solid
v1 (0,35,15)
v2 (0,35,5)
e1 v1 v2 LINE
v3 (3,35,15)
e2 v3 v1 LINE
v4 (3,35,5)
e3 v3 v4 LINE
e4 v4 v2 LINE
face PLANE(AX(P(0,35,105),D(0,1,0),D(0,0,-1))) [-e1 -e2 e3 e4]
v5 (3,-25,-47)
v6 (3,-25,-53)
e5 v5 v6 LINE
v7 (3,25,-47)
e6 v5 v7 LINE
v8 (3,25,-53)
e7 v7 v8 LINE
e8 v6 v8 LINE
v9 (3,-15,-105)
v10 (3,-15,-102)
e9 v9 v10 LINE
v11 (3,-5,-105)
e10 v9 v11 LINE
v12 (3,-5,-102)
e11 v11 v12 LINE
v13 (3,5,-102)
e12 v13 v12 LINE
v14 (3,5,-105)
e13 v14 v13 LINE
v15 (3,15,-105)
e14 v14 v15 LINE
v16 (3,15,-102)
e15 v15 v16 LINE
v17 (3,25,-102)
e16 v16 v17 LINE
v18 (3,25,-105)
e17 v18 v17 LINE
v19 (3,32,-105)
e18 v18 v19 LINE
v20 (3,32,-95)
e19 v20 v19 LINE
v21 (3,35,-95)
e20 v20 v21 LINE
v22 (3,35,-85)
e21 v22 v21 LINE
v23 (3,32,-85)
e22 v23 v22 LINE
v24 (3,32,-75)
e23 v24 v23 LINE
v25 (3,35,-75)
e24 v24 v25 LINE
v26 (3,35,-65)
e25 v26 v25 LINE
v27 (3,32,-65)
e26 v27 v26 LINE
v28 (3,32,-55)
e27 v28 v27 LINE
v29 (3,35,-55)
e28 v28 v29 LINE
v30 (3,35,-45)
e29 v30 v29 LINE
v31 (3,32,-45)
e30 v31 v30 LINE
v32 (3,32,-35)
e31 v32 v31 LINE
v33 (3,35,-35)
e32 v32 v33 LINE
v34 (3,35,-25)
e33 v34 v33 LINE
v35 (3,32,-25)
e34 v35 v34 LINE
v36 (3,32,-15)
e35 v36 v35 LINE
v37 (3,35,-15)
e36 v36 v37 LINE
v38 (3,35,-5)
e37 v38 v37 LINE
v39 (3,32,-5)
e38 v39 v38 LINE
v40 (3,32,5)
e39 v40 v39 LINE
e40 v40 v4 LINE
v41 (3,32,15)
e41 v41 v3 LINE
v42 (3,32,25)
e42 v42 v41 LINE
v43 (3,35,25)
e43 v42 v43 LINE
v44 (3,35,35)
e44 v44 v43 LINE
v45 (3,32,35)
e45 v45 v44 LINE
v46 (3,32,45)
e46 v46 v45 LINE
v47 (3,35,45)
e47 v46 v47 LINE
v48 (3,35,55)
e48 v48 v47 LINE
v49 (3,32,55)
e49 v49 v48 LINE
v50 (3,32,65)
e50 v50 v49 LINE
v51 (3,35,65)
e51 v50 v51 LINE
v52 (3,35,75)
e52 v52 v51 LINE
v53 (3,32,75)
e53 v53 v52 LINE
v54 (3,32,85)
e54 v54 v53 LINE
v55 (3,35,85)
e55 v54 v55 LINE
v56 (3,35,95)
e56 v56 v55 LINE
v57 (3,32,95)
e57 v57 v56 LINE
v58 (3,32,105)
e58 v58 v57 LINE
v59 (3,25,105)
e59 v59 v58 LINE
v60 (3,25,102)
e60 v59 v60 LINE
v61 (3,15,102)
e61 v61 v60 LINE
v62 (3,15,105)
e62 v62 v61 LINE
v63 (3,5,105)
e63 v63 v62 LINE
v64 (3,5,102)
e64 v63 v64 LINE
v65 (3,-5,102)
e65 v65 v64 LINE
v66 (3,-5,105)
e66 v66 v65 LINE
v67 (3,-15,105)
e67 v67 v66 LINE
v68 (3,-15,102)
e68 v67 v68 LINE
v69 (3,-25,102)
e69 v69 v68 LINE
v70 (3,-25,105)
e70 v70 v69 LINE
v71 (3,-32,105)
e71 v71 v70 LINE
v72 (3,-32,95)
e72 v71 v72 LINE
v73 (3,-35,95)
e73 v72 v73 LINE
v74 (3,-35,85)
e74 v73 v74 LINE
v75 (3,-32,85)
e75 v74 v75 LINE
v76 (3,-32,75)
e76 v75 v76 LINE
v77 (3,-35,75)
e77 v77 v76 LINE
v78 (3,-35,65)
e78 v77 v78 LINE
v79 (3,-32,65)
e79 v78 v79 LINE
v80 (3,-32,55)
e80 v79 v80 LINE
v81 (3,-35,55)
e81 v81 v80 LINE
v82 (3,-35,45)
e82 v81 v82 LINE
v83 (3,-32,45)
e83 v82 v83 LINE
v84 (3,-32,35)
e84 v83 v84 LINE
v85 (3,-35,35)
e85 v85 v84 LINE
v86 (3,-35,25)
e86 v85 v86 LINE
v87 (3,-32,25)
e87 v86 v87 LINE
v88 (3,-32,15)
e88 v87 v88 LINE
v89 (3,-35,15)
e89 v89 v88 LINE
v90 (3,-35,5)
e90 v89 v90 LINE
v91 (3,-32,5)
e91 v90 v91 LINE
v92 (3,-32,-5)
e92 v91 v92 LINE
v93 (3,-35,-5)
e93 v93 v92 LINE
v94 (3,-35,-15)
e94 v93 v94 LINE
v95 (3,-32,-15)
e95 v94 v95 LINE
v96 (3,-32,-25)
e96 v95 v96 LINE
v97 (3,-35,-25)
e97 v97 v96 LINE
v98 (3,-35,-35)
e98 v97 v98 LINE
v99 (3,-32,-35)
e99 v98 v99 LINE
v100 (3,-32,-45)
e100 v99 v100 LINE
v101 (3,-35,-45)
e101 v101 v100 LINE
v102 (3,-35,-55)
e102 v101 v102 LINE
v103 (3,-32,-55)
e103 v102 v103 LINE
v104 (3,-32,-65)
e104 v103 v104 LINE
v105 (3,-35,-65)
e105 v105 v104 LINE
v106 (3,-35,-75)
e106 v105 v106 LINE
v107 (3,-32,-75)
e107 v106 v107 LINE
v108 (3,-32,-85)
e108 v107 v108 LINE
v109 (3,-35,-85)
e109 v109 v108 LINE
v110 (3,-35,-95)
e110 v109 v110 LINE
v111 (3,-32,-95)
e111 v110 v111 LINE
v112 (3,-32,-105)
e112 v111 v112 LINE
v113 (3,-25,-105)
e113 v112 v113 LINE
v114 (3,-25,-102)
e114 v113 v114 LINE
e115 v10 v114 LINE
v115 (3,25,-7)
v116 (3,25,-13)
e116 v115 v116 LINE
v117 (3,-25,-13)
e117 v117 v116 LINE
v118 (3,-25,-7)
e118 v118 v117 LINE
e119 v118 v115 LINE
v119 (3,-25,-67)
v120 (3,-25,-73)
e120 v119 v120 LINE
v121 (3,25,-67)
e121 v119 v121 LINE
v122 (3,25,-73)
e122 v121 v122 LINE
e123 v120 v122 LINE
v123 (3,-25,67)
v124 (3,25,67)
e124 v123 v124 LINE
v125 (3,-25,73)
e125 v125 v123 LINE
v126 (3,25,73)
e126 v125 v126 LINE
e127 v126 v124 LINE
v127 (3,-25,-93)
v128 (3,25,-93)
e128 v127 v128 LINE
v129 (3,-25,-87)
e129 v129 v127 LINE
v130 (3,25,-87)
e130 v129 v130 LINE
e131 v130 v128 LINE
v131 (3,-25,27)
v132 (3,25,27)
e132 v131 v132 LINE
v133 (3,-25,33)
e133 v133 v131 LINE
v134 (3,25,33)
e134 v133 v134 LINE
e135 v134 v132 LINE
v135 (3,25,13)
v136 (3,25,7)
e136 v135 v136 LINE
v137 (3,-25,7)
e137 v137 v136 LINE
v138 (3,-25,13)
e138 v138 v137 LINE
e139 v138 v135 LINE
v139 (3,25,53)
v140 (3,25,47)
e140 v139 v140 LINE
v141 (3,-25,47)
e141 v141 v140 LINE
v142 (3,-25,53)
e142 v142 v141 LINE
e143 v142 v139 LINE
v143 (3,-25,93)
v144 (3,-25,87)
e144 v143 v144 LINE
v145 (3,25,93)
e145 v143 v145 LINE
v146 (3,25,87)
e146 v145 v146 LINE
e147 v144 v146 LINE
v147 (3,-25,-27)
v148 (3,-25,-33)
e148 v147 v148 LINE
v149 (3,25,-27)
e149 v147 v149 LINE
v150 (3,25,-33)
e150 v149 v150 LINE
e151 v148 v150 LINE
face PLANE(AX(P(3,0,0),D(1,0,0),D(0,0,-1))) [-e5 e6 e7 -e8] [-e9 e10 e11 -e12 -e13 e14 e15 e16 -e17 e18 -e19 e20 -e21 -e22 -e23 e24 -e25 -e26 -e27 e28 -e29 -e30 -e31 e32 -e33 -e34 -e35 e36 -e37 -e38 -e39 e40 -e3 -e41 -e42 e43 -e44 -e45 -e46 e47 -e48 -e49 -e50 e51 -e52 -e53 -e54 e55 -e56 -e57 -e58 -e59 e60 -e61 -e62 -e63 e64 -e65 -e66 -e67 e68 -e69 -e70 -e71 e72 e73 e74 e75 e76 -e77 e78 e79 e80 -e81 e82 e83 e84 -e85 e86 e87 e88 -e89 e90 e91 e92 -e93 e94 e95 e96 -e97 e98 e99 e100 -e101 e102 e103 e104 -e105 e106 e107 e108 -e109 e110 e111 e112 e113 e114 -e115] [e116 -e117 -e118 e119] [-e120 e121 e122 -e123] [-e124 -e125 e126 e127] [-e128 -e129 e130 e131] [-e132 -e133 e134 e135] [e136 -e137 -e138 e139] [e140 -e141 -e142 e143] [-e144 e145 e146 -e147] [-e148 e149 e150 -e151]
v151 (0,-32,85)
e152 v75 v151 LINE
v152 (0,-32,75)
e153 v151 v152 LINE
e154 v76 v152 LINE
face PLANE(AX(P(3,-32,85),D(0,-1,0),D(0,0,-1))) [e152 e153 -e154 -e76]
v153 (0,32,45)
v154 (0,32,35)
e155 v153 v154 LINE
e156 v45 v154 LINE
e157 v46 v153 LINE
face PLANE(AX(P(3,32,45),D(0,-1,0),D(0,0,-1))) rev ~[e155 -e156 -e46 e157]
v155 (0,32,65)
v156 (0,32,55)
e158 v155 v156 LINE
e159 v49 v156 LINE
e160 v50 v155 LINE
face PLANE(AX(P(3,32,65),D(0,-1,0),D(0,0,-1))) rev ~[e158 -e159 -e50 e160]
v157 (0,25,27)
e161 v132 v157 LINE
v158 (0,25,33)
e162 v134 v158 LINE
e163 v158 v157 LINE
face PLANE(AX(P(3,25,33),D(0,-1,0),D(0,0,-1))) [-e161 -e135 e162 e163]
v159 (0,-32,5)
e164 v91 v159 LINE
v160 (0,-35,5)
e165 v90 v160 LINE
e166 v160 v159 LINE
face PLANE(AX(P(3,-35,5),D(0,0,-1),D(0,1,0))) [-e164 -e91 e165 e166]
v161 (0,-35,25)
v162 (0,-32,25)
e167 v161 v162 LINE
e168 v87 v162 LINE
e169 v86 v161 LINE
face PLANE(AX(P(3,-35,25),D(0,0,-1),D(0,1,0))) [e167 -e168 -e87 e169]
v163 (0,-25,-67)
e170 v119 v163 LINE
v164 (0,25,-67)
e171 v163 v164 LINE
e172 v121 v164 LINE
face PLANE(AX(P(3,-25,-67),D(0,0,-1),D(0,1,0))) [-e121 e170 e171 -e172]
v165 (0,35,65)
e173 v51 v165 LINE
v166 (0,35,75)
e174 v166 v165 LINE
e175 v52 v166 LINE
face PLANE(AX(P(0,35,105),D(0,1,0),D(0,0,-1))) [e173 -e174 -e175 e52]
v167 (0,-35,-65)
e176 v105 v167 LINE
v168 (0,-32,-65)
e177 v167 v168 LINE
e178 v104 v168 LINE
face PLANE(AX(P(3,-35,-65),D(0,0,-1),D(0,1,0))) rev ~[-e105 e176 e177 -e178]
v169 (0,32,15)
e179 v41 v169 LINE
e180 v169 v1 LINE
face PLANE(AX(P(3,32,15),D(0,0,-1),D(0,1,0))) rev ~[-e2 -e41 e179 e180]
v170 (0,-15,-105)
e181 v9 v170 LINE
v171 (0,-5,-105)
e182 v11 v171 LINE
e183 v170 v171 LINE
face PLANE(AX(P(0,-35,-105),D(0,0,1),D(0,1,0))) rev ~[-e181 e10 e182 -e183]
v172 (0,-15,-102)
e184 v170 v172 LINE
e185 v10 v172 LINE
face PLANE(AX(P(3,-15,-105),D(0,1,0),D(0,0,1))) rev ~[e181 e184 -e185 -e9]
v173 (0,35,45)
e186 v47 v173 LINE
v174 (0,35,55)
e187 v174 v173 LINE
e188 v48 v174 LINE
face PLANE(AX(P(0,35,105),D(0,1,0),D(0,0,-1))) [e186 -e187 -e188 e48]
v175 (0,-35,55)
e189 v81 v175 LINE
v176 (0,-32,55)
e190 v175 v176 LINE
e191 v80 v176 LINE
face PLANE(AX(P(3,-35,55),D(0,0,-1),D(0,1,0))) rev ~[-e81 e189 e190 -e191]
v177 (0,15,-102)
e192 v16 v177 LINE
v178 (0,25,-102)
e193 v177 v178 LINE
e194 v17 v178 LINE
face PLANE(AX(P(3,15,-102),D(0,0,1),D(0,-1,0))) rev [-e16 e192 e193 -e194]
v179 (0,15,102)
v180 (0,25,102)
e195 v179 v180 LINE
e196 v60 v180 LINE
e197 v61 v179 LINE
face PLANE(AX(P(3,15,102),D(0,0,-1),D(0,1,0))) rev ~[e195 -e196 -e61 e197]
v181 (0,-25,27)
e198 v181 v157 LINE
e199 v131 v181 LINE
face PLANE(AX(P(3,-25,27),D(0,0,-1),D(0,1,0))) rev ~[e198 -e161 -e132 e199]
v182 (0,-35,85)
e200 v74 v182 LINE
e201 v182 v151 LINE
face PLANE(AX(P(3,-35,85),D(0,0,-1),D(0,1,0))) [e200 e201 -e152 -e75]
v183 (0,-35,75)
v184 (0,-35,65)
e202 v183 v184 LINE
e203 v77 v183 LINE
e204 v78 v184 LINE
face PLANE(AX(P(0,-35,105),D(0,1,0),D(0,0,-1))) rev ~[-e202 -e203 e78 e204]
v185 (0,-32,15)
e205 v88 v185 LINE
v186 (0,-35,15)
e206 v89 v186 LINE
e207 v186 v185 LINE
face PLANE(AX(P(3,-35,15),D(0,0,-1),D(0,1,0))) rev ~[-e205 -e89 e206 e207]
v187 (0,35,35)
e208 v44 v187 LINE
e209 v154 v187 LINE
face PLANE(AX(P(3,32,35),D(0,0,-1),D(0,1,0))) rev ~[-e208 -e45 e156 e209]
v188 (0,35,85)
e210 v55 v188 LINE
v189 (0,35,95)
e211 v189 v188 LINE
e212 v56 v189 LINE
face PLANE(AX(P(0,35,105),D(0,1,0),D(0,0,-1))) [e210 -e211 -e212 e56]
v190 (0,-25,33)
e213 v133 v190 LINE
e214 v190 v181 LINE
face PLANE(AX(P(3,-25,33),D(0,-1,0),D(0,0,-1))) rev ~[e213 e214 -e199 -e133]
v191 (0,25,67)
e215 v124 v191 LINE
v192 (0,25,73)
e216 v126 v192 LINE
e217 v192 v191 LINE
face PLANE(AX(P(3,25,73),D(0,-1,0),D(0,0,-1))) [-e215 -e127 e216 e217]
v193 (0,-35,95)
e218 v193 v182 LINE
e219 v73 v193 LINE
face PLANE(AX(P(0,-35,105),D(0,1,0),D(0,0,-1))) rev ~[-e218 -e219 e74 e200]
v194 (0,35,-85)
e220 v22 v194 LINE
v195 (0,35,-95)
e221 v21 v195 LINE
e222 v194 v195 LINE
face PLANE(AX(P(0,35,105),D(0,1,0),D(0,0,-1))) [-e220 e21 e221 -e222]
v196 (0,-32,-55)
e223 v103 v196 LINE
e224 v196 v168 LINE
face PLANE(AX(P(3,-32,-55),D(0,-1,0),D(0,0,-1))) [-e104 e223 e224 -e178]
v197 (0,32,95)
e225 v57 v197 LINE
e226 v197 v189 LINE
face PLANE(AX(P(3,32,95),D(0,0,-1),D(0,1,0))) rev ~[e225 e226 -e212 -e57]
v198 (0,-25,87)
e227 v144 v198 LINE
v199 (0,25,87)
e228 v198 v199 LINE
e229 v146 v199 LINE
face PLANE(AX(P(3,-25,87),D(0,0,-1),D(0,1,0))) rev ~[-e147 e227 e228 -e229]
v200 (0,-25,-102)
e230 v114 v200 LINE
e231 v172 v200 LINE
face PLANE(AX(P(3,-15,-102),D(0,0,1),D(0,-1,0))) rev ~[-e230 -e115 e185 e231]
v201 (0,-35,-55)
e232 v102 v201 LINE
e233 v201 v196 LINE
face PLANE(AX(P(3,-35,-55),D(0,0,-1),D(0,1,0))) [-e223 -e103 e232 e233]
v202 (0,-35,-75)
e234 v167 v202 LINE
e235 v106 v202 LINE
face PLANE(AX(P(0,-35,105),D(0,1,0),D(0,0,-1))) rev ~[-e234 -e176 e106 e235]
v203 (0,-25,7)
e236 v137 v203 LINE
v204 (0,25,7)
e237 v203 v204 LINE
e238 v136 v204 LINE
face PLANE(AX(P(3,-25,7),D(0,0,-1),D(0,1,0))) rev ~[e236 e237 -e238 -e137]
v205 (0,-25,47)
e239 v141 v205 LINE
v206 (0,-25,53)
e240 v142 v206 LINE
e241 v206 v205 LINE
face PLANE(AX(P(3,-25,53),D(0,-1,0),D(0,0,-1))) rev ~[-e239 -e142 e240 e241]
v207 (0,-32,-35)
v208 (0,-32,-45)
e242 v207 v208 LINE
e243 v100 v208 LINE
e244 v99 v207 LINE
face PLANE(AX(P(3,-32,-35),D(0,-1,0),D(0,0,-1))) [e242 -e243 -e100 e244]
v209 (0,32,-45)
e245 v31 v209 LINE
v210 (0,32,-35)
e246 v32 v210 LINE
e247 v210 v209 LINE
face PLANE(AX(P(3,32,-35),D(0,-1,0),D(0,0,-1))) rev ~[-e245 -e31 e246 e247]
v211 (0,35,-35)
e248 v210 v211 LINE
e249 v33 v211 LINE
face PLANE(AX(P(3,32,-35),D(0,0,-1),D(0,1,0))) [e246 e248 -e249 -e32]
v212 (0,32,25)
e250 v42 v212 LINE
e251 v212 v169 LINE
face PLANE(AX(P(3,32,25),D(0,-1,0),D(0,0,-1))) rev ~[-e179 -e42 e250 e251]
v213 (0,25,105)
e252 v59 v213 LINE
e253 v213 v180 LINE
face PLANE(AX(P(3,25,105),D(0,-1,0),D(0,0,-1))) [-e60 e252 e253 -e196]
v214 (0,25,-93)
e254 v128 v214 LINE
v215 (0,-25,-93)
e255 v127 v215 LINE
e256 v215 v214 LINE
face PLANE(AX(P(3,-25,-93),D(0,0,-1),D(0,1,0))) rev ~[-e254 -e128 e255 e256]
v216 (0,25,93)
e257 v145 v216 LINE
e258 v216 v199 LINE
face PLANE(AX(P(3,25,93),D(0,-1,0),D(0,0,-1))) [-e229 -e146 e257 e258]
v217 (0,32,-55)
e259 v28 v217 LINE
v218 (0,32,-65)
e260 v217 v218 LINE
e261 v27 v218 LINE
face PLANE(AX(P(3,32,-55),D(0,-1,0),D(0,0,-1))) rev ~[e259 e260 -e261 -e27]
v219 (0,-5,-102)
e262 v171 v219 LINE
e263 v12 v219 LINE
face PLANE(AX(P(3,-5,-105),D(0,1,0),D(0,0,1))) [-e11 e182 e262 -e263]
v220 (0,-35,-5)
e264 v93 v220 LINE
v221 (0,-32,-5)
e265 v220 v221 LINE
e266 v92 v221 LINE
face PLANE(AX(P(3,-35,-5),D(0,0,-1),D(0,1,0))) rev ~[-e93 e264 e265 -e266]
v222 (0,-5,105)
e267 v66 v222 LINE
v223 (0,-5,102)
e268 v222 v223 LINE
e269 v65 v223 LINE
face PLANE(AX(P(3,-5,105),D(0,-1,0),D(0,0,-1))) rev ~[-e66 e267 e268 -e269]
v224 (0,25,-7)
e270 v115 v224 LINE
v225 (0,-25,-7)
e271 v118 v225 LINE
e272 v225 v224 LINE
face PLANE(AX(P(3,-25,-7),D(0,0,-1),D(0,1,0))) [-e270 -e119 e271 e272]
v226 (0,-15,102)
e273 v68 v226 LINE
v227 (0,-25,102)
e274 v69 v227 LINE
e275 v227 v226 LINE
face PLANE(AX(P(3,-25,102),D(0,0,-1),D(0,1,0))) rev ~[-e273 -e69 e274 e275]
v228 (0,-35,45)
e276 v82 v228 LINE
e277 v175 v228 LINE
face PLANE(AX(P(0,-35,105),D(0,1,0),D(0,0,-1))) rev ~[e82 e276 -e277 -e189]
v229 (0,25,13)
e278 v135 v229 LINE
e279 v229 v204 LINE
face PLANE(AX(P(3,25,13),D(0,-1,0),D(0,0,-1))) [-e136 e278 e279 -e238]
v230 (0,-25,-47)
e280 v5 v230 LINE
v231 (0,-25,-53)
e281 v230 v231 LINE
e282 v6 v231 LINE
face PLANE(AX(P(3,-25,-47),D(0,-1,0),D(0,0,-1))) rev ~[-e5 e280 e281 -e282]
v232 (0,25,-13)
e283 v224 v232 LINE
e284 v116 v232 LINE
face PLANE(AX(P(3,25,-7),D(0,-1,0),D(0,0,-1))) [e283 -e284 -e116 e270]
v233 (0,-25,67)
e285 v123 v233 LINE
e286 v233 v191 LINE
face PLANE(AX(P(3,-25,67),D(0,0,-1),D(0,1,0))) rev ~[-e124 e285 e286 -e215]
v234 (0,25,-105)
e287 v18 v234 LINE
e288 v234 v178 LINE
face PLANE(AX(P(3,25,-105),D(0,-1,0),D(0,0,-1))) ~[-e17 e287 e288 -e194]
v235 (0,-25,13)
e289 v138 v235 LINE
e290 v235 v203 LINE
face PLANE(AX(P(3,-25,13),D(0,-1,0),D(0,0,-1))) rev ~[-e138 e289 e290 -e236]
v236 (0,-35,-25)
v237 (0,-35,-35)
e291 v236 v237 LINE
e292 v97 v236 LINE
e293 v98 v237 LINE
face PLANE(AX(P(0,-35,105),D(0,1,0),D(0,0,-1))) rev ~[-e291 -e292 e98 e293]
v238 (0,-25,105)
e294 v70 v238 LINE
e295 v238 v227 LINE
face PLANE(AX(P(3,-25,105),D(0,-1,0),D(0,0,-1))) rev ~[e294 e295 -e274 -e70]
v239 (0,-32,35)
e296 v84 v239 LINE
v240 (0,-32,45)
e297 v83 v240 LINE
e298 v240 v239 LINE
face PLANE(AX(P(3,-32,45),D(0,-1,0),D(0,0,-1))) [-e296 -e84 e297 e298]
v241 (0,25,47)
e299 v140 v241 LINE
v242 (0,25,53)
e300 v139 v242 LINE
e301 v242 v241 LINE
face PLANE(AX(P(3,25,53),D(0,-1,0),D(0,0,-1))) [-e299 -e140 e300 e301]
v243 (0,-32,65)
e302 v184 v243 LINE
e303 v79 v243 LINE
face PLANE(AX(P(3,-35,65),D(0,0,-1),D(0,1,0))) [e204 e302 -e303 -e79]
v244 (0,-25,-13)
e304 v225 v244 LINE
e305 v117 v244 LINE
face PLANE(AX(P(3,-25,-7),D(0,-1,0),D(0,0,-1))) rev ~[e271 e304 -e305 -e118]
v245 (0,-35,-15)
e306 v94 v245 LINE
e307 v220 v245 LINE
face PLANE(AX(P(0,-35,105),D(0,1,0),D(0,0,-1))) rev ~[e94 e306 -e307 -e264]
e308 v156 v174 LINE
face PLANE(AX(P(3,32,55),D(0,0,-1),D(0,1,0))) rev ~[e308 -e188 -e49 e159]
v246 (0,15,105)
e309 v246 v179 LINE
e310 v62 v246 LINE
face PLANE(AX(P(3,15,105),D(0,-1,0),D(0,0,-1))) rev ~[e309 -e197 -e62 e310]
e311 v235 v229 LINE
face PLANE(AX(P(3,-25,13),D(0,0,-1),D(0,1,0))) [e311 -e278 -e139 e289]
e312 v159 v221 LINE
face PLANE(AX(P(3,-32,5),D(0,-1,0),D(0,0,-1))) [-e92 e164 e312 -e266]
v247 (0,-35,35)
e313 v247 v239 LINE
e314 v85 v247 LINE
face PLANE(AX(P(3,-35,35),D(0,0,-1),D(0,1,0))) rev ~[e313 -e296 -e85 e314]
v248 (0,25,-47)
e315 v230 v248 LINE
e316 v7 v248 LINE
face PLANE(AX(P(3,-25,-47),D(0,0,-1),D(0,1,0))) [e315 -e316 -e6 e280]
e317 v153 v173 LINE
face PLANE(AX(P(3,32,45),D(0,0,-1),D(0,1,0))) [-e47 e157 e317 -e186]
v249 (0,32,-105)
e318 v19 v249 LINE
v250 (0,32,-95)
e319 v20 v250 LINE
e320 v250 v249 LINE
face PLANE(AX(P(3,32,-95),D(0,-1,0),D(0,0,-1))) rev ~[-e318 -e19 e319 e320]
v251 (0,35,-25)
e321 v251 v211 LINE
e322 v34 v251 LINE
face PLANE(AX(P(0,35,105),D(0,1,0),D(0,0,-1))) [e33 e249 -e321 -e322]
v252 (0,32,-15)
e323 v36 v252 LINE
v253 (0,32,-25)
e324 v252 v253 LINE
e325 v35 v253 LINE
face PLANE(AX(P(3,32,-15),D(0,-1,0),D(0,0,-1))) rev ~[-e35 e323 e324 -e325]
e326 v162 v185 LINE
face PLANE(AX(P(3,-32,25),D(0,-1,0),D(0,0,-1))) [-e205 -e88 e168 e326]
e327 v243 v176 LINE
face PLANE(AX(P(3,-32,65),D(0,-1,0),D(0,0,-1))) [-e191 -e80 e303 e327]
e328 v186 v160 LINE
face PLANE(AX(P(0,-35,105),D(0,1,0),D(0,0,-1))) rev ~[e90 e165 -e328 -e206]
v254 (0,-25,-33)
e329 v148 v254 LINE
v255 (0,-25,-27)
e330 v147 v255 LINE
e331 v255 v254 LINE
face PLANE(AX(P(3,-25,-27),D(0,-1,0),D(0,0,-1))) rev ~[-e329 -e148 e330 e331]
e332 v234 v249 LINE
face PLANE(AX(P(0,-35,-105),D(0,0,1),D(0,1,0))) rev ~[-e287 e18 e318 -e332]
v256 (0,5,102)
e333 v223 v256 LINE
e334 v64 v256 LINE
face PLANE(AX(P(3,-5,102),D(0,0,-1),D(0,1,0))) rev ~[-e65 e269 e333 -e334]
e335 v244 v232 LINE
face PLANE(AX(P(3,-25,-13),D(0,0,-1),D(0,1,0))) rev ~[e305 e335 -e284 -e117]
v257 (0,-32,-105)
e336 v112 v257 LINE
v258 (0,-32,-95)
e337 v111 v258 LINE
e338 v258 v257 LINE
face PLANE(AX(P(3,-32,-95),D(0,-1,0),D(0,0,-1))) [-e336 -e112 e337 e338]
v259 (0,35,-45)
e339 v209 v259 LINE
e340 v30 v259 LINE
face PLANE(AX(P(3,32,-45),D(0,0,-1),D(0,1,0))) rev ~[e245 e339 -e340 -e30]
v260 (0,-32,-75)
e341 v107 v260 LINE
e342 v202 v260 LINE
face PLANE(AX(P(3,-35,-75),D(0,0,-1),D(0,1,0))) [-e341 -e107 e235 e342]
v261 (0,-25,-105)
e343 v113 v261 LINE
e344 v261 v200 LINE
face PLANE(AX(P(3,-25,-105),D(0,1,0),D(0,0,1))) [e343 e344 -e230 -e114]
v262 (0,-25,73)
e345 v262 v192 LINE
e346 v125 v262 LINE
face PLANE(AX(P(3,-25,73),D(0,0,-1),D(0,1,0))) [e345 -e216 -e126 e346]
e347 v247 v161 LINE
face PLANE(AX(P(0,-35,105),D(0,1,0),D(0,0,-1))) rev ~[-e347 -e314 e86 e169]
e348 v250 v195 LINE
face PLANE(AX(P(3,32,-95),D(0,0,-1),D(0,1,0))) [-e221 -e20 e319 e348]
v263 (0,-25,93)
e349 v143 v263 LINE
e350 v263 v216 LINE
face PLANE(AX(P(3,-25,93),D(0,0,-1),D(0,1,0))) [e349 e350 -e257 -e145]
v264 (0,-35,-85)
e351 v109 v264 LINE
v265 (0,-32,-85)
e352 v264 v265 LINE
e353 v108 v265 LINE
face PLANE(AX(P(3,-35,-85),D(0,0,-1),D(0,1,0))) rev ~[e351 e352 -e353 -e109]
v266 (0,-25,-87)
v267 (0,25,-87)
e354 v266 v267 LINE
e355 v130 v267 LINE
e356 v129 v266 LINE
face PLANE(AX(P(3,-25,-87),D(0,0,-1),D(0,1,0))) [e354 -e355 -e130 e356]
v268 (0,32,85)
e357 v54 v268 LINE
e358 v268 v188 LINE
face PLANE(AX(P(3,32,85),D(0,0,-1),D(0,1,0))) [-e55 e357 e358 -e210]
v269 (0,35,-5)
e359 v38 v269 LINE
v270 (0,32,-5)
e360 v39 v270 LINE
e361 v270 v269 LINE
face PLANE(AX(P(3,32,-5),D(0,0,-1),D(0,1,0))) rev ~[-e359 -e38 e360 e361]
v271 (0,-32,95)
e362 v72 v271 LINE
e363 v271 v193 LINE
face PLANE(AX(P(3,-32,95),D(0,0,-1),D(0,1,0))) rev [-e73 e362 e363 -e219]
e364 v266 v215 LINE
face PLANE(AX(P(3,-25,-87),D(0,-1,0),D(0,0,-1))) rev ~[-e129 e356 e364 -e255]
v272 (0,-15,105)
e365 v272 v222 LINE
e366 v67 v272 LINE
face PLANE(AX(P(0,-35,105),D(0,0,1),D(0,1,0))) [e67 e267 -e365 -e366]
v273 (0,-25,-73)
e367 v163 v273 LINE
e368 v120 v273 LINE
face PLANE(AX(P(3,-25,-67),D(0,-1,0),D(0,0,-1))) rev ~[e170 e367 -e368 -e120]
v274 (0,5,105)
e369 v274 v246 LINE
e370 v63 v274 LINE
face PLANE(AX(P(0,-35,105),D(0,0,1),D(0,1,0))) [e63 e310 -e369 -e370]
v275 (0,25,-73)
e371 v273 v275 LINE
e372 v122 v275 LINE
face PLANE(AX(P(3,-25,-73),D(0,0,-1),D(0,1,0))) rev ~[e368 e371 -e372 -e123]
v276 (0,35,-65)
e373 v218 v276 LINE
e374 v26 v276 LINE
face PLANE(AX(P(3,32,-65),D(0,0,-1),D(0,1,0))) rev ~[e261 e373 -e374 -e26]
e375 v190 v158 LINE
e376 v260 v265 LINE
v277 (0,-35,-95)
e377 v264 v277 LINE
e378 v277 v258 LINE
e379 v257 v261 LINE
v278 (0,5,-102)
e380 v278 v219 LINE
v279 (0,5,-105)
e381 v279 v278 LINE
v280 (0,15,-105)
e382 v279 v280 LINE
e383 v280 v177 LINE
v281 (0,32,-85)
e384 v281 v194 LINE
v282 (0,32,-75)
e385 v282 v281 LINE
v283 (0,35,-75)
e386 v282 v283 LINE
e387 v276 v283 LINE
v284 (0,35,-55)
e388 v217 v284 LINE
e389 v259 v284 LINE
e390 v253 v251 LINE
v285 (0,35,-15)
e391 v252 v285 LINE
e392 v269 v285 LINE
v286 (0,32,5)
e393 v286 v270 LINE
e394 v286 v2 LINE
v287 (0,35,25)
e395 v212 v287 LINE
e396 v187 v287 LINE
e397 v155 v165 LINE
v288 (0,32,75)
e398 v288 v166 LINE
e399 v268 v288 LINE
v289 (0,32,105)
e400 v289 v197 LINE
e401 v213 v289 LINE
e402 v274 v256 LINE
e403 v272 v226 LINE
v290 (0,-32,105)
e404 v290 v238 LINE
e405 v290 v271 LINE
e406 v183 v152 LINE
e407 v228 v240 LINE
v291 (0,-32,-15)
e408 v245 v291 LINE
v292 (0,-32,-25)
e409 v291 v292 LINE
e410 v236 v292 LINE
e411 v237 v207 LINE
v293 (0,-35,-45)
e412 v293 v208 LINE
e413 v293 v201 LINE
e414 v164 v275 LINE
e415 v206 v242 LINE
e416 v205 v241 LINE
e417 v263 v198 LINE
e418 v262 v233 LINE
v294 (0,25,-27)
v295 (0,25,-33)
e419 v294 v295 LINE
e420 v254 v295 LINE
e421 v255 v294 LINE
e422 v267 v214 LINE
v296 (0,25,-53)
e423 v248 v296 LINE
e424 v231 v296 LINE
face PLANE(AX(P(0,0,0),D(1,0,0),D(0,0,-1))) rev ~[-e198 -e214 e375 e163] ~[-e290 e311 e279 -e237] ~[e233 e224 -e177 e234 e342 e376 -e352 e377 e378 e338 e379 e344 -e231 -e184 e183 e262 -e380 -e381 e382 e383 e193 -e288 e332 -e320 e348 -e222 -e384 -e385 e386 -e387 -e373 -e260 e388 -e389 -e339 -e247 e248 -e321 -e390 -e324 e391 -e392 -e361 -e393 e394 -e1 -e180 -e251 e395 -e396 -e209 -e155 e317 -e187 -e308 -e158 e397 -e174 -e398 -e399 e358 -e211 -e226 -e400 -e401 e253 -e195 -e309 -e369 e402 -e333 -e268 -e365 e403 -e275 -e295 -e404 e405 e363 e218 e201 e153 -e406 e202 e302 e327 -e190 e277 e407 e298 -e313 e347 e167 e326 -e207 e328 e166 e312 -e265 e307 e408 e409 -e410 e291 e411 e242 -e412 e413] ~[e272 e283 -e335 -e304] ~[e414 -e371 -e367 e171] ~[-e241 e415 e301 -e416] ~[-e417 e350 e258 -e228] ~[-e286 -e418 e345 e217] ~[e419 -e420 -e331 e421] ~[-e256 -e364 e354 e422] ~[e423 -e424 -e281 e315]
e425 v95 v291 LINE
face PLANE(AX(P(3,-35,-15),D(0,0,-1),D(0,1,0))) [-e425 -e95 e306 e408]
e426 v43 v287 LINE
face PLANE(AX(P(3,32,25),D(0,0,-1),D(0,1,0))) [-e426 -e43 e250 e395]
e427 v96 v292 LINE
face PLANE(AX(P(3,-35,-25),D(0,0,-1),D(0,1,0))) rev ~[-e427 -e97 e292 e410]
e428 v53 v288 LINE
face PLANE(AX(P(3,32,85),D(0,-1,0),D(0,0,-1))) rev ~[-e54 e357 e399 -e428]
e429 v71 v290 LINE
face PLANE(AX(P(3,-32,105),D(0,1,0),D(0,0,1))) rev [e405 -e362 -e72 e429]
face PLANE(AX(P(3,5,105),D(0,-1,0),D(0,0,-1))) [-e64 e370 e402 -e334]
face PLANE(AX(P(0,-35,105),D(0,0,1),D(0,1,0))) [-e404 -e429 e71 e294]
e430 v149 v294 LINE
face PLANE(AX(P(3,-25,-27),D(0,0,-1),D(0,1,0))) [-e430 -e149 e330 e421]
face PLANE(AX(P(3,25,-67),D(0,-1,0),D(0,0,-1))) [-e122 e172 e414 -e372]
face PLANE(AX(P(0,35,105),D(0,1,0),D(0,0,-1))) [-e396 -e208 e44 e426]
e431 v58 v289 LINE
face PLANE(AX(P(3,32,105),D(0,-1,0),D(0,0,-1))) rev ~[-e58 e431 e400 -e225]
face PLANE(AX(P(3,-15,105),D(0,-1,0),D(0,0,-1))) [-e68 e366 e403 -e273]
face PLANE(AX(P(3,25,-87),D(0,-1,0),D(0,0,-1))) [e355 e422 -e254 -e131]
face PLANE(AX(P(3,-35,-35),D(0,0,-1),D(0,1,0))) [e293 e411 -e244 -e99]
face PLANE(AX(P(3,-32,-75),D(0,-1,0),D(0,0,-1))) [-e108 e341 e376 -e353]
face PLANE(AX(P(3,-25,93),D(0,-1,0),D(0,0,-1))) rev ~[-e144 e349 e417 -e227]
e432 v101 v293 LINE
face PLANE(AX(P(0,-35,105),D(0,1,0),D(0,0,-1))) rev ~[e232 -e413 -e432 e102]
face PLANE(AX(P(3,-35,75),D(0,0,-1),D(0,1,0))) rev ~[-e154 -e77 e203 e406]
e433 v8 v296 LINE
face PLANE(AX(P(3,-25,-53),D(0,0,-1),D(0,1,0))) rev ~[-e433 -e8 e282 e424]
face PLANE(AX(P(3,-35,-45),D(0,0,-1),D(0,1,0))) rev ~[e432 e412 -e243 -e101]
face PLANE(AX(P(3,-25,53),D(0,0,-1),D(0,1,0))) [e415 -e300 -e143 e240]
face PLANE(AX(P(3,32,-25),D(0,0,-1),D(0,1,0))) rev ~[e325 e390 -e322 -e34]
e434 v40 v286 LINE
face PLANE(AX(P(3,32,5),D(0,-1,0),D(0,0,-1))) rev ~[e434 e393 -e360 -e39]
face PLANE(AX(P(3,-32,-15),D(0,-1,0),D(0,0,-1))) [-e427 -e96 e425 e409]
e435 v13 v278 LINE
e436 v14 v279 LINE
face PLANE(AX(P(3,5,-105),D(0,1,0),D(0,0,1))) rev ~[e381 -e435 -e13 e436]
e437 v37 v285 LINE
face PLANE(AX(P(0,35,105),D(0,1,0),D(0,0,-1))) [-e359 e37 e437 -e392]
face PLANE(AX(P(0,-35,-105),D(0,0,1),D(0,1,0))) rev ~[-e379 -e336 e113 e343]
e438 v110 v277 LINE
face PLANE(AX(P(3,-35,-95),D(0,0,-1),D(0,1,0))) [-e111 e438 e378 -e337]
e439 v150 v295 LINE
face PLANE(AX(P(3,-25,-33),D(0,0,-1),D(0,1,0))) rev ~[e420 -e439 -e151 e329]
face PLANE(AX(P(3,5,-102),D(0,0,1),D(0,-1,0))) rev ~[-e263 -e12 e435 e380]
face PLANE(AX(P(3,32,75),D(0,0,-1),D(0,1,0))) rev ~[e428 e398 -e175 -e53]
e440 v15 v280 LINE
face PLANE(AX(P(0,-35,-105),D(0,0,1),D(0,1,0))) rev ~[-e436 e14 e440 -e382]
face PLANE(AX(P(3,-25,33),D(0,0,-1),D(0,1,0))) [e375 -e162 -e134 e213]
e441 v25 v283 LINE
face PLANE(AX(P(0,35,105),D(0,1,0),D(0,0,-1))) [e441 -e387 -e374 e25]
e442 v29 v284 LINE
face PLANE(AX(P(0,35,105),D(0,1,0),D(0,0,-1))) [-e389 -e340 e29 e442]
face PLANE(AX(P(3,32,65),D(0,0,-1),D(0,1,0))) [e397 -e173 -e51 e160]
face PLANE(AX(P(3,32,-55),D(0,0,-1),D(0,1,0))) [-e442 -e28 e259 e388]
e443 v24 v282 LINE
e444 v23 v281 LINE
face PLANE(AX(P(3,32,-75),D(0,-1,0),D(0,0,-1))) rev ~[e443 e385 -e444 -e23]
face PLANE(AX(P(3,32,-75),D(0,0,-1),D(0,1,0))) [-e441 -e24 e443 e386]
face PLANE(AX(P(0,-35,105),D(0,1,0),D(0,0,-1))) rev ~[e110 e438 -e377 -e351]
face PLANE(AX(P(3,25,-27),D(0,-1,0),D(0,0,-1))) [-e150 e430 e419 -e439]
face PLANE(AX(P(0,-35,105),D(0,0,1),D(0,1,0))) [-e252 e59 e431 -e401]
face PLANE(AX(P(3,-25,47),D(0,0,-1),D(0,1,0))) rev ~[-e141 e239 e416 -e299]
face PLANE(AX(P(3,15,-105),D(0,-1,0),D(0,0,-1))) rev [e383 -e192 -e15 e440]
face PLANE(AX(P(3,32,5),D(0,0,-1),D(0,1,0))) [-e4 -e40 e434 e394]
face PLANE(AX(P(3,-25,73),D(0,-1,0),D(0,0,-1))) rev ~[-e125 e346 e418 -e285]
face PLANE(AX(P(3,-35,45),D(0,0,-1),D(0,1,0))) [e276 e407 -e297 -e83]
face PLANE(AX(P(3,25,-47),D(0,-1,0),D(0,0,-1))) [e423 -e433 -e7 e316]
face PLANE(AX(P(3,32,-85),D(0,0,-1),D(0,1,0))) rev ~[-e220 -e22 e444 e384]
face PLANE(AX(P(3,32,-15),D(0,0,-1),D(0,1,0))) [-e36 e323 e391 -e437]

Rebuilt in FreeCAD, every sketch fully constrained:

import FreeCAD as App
import Part
import Sketcher

V = App.Vector
Q = App.Units.Quantity

doc = App.newDocument("Part")
body = doc.addObject("PartDesign::Body", "Body")

# Sketch on YZ plane
sketch1 = doc.addObject("Sketcher::SketchObject", "Sketch")
body.addObject(sketch1)
sketch1.AttachmentSupport = (doc.YZ_Plane, [""])
sketch1.MapMode = "FlatFace"
sketch1.addGeometry([
    Part.LineSegment(V(35, 105, 0), V(-35, 105, 0)),
    Part.LineSegment(V(-35, 105, 0), V(-35, -105, 0)),
    Part.LineSegment(V(-35, -105, 0), V(35, -105, 0)),
    Part.LineSegment(V(35, -105, 0), V(35, 105, 0)),
], False)
sketch1.addConstraint([
    Sketcher.Constraint("Coincident", 0, 2, 1, 1),
    Sketcher.Constraint("Coincident", 1, 2, 2, 1),
    Sketcher.Constraint("Coincident", 2, 2, 3, 1),
    Sketcher.Constraint("Coincident", 3, 2, 0, 1),
    Sketcher.Constraint("Horizontal", 0),
    Sketcher.Constraint("Vertical", 1),
    Sketcher.Constraint("Horizontal", 2),
    Sketcher.Constraint("Vertical", 3),
    Sketcher.Constraint("Symmetric", 0, 2, 2, 2, -1, 1),
    Sketcher.Constraint("DistanceX", 0, 2, 0, 1, Q("70 mm")),
    Sketcher.Constraint("DistanceY", 1, 2, 1, 1, Q("210 mm")),
])
pad1 = doc.addObject("PartDesign::Pad", "Pad")
body.addObject(pad1)
pad1.Profile = sketch1
pad1.Length = 3

# Sketch on YZ plane
sketch2 = doc.addObject("Sketcher::SketchObject", "Sketch001")
body.addObject(sketch2)
sketch2.AttachmentSupport = (doc.YZ_Plane, [""])
sketch2.MapMode = "FlatFace"
sketch2.AttachmentOffset = App.Placement(V(0, 0, 3), App.Rotation())
sketch2.addGeometry([
    Part.LineSegment(V(35, 105, 0), V(32, 105, 0)),
    Part.LineSegment(V(32, 105, 0), V(32, 95, 0)),
    Part.LineSegment(V(32, 95, 0), V(35, 95, 0)),
    Part.LineSegment(V(35, 95, 0), V(35, 105, 0)),
], False)
sketch2.addConstraint([
    Sketcher.Constraint("Coincident", 0, 2, 1, 1),
    Sketcher.Constraint("Coincident", 1, 2, 2, 1),
    Sketcher.Constraint("Coincident", 2, 2, 3, 1),
    Sketcher.Constraint("Coincident", 3, 2, 0, 1),
    Sketcher.Constraint("Horizontal", 0),
    Sketcher.Constraint("Vertical", 1),
    Sketcher.Constraint("Horizontal", 2),
    Sketcher.Constraint("Vertical", 3),
    Sketcher.Constraint("DistanceX", 0, 2, 0, 1, Q("3 mm")),
    Sketcher.Constraint("DistanceY", 1, 2, 1, 1, Q("10 mm")),
    Sketcher.Constraint("DistanceX", -1, 1, 0, 2, Q("32 mm")),
    Sketcher.Constraint("DistanceY", -1, 1, 0, 2, Q("105 mm")),
])
pocket1 = doc.addObject("PartDesign::Pocket", "Pocket")
body.addObject(pocket1)
pocket1.Profile = sketch2
pocket1.Length = 3
doc.recompute()

linearpattern = doc.addObject("PartDesign::LinearPattern", "LinearPattern")
body.addObject(linearpattern)
linearpattern.Originals = [pocket1]
linearpattern.Direction = (doc.Z_Axis, [""])
linearpattern.Mode = "offset"
linearpattern.Offset = 20
linearpattern.Occurrences = 11
linearpattern.Reversed = True
body.Tip = linearpattern
doc.recompute()

mirrored = doc.addObject("PartDesign::Mirrored", "Mirrored")
body.addObject(mirrored)
mirrored.Originals = [pocket1]
mirrored.MirrorPlane = (doc.XZ_Plane, [""])
body.Tip = mirrored

# Sketch on YZ plane
sketch3 = doc.addObject("Sketcher::SketchObject", "Sketch002")
body.addObject(sketch3)
sketch3.AttachmentSupport = (doc.YZ_Plane, [""])
sketch3.MapMode = "FlatFace"
sketch3.AttachmentOffset = App.Placement(V(0, 0, 3), App.Rotation())
sketch3.addGeometry([
    Part.LineSegment(V(-32, 85, 0), V(-35, 85, 0)),
    Part.LineSegment(V(-35, 85, 0), V(-35, 75, 0)),
    Part.LineSegment(V(-35, 75, 0), V(-32, 75, 0)),
    Part.LineSegment(V(-32, 75, 0), V(-32, 85, 0)),
], False)
sketch3.addConstraint([
    Sketcher.Constraint("Coincident", 0, 2, 1, 1),
    Sketcher.Constraint("Coincident", 1, 2, 2, 1),
    Sketcher.Constraint("Coincident", 2, 2, 3, 1),
    Sketcher.Constraint("Coincident", 3, 2, 0, 1),
    Sketcher.Constraint("Horizontal", 0),
    Sketcher.Constraint("Vertical", 1),
    Sketcher.Constraint("Horizontal", 2),
    Sketcher.Constraint("Vertical", 3),
    Sketcher.Constraint("DistanceX", 0, 2, 0, 1, Q("3 mm")),
    Sketcher.Constraint("DistanceY", 1, 2, 1, 1, Q("10 mm")),
    Sketcher.Constraint("DistanceX", 0, 2, -1, 1, Q("35 mm")),
    Sketcher.Constraint("DistanceY", -1, 1, 0, 2, Q("85 mm")),
])
pocket2 = doc.addObject("PartDesign::Pocket", "Pocket001")
body.addObject(pocket2)
pocket2.Profile = sketch3
pocket2.Length = 3

# Sketch on YZ plane
sketch4 = doc.addObject("Sketcher::SketchObject", "Sketch003")
body.addObject(sketch4)
sketch4.AttachmentSupport = (doc.YZ_Plane, [""])
sketch4.MapMode = "FlatFace"
sketch4.AttachmentOffset = App.Placement(V(0, 0, 3), App.Rotation())
sketch4.addGeometry([
    Part.LineSegment(V(-32, 65, 0), V(-35, 65, 0)),
    Part.LineSegment(V(-35, 65, 0), V(-35, 55, 0)),
    Part.LineSegment(V(-35, 55, 0), V(-32, 55, 0)),
    Part.LineSegment(V(-32, 55, 0), V(-32, 65, 0)),
], False)
sketch4.addConstraint([
    Sketcher.Constraint("Coincident", 0, 2, 1, 1),
    Sketcher.Constraint("Coincident", 1, 2, 2, 1),
    Sketcher.Constraint("Coincident", 2, 2, 3, 1),
    Sketcher.Constraint("Coincident", 3, 2, 0, 1),
    Sketcher.Constraint("Horizontal", 0),
    Sketcher.Constraint("Vertical", 1),
    Sketcher.Constraint("Horizontal", 2),
    Sketcher.Constraint("Vertical", 3),
    Sketcher.Constraint("DistanceX", 0, 2, 0, 1, Q("3 mm")),
    Sketcher.Constraint("DistanceY", 1, 2, 1, 1, Q("10 mm")),
    Sketcher.Constraint("DistanceX", 0, 2, -1, 1, Q("35 mm")),
    Sketcher.Constraint("DistanceY", -1, 1, 0, 2, Q("65 mm")),
])
pocket3 = doc.addObject("PartDesign::Pocket", "Pocket002")
body.addObject(pocket3)
pocket3.Profile = sketch4
pocket3.Length = 3

# Sketch on YZ plane
sketch5 = doc.addObject("Sketcher::SketchObject", "Sketch004")
body.addObject(sketch5)
sketch5.AttachmentSupport = (doc.YZ_Plane, [""])
sketch5.MapMode = "FlatFace"
sketch5.AttachmentOffset = App.Placement(V(0, 0, 3), App.Rotation())
sketch5.addGeometry([
    Part.LineSegment(V(-32, 45, 0), V(-35, 45, 0)),
    Part.LineSegment(V(-35, 45, 0), V(-35, 35, 0)),
    Part.LineSegment(V(-35, 35, 0), V(-32, 35, 0)),
    Part.LineSegment(V(-32, 35, 0), V(-32, 45, 0)),
], False)
sketch5.addConstraint([
    Sketcher.Constraint("Coincident", 0, 2, 1, 1),
    Sketcher.Constraint("Coincident", 1, 2, 2, 1),
    Sketcher.Constraint("Coincident", 2, 2, 3, 1),
    Sketcher.Constraint("Coincident", 3, 2, 0, 1),
    Sketcher.Constraint("Horizontal", 0),
    Sketcher.Constraint("Vertical", 1),
    Sketcher.Constraint("Horizontal", 2),
    Sketcher.Constraint("Vertical", 3),
    Sketcher.Constraint("DistanceX", 0, 2, 0, 1, Q("3 mm")),
    Sketcher.Constraint("DistanceY", 1, 2, 1, 1, Q("10 mm")),
    Sketcher.Constraint("DistanceX", 0, 2, -1, 1, Q("35 mm")),
    Sketcher.Constraint("DistanceY", -1, 1, 0, 2, Q("45 mm")),
])
pocket4 = doc.addObject("PartDesign::Pocket", "Pocket003")
body.addObject(pocket4)
pocket4.Profile = sketch5
pocket4.Length = 3

# Sketch on YZ plane
sketch6 = doc.addObject("Sketcher::SketchObject", "Sketch005")
body.addObject(sketch6)
sketch6.AttachmentSupport = (doc.YZ_Plane, [""])
sketch6.MapMode = "FlatFace"
sketch6.AttachmentOffset = App.Placement(V(0, 0, 3), App.Rotation())
sketch6.addGeometry([
    Part.LineSegment(V(-32, 25, 0), V(-35, 25, 0)),
    Part.LineSegment(V(-35, 25, 0), V(-35, 15, 0)),
    Part.LineSegment(V(-35, 15, 0), V(-32, 15, 0)),
    Part.LineSegment(V(-32, 15, 0), V(-32, 25, 0)),
], False)
sketch6.addConstraint([
    Sketcher.Constraint("Coincident", 0, 2, 1, 1),
    Sketcher.Constraint("Coincident", 1, 2, 2, 1),
    Sketcher.Constraint("Coincident", 2, 2, 3, 1),
    Sketcher.Constraint("Coincident", 3, 2, 0, 1),
    Sketcher.Constraint("Horizontal", 0),
    Sketcher.Constraint("Vertical", 1),
    Sketcher.Constraint("Horizontal", 2),
    Sketcher.Constraint("Vertical", 3),
    Sketcher.Constraint("DistanceX", 0, 2, 0, 1, Q("3 mm")),
    Sketcher.Constraint("DistanceY", 1, 2, 1, 1, Q("10 mm")),
    Sketcher.Constraint("DistanceX", 0, 2, -1, 1, Q("35 mm")),
    Sketcher.Constraint("DistanceY", -1, 1, 0, 2, Q("25 mm")),
])
pocket5 = doc.addObject("PartDesign::Pocket", "Pocket004")
body.addObject(pocket5)
pocket5.Profile = sketch6
pocket5.Length = 3

# Sketch on YZ plane
sketch7 = doc.addObject("Sketcher::SketchObject", "Sketch006")
body.addObject(sketch7)
sketch7.AttachmentSupport = (doc.YZ_Plane, [""])
sketch7.MapMode = "FlatFace"
sketch7.AttachmentOffset = App.Placement(V(0, 0, 3), App.Rotation())
sketch7.addGeometry([
    Part.LineSegment(V(-32, 5, 0), V(-35, 5, 0)),
    Part.LineSegment(V(-35, 5, 0), V(-35, -5, 0)),
    Part.LineSegment(V(-35, -5, 0), V(-32, -5, 0)),
    Part.LineSegment(V(-32, -5, 0), V(-32, 5, 0)),
], False)
sketch7.addConstraint([
    Sketcher.Constraint("Coincident", 0, 2, 1, 1),
    Sketcher.Constraint("Coincident", 1, 2, 2, 1),
    Sketcher.Constraint("Coincident", 2, 2, 3, 1),
    Sketcher.Constraint("Coincident", 3, 2, 0, 1),
    Sketcher.Constraint("Horizontal", 0),
    Sketcher.Constraint("Vertical", 1),
    Sketcher.Constraint("Horizontal", 2),
    Sketcher.Constraint("Vertical", 3),
    Sketcher.Constraint("DistanceX", 0, 2, 0, 1, Q("3 mm")),
    Sketcher.Constraint("DistanceY", 1, 2, 1, 1, Q("10 mm")),
    Sketcher.Constraint("DistanceX", 0, 2, -1, 1, Q("35 mm")),
    Sketcher.Constraint("DistanceY", -1, 1, 0, 2, Q("5 mm")),
])
pocket6 = doc.addObject("PartDesign::Pocket", "Pocket005")
body.addObject(pocket6)
pocket6.Profile = sketch7
pocket6.Length = 3

# Sketch on YZ plane
sketch8 = doc.addObject("Sketcher::SketchObject", "Sketch007")
body.addObject(sketch8)
sketch8.AttachmentSupport = (doc.YZ_Plane, [""])
sketch8.MapMode = "FlatFace"
sketch8.AttachmentOffset = App.Placement(V(0, 0, 3), App.Rotation())
sketch8.addGeometry([
    Part.LineSegment(V(-32, -15, 0), V(-35, -15, 0)),
    Part.LineSegment(V(-35, -15, 0), V(-35, -25, 0)),
    Part.LineSegment(V(-35, -25, 0), V(-32, -25, 0)),
    Part.LineSegment(V(-32, -25, 0), V(-32, -15, 0)),
], False)
sketch8.addConstraint([
    Sketcher.Constraint("Coincident", 0, 2, 1, 1),
    Sketcher.Constraint("Coincident", 1, 2, 2, 1),
    Sketcher.Constraint("Coincident", 2, 2, 3, 1),
    Sketcher.Constraint("Coincident", 3, 2, 0, 1),
    Sketcher.Constraint("Horizontal", 0),
    Sketcher.Constraint("Vertical", 1),
    Sketcher.Constraint("Horizontal", 2),
    Sketcher.Constraint("Vertical", 3),
    Sketcher.Constraint("DistanceX", 0, 2, 0, 1, Q("3 mm")),
    Sketcher.Constraint("DistanceY", 1, 2, 1, 1, Q("10 mm")),
    Sketcher.Constraint("DistanceX", 0, 2, -1, 1, Q("35 mm")),
    Sketcher.Constraint("DistanceY", 0, 2, -1, 1, Q("15 mm")),
])
pocket7 = doc.addObject("PartDesign::Pocket", "Pocket006")
body.addObject(pocket7)
pocket7.Profile = sketch8
pocket7.Length = 3

# Sketch on YZ plane
sketch9 = doc.addObject("Sketcher::SketchObject", "Sketch008")
body.addObject(sketch9)
sketch9.AttachmentSupport = (doc.YZ_Plane, [""])
sketch9.MapMode = "FlatFace"
sketch9.AttachmentOffset = App.Placement(V(0, 0, 3), App.Rotation())
sketch9.addGeometry([
    Part.LineSegment(V(-32, -35, 0), V(-35, -35, 0)),
    Part.LineSegment(V(-35, -35, 0), V(-35, -45, 0)),
    Part.LineSegment(V(-35, -45, 0), V(-32, -45, 0)),
    Part.LineSegment(V(-32, -45, 0), V(-32, -35, 0)),
], False)
sketch9.addConstraint([
    Sketcher.Constraint("Coincident", 0, 2, 1, 1),
    Sketcher.Constraint("Coincident", 1, 2, 2, 1),
    Sketcher.Constraint("Coincident", 2, 2, 3, 1),
    Sketcher.Constraint("Coincident", 3, 2, 0, 1),
    Sketcher.Constraint("Horizontal", 0),
    Sketcher.Constraint("Vertical", 1),
    Sketcher.Constraint("Horizontal", 2),
    Sketcher.Constraint("Vertical", 3),
    Sketcher.Constraint("DistanceX", 0, 2, 0, 1, Q("3 mm")),
    Sketcher.Constraint("DistanceY", 1, 2, 1, 1, Q("10 mm")),
    Sketcher.Constraint("DistanceX", 0, 2, -1, 1, Q("35 mm")),
    Sketcher.Constraint("DistanceY", 0, 2, -1, 1, Q("35 mm")),
])
pocket8 = doc.addObject("PartDesign::Pocket", "Pocket007")
body.addObject(pocket8)
pocket8.Profile = sketch9
pocket8.Length = 3

# Sketch on YZ plane
sketch10 = doc.addObject("Sketcher::SketchObject", "Sketch009")
body.addObject(sketch10)
sketch10.AttachmentSupport = (doc.YZ_Plane, [""])
sketch10.MapMode = "FlatFace"
sketch10.AttachmentOffset = App.Placement(V(0, 0, 3), App.Rotation())
sketch10.addGeometry([
    Part.LineSegment(V(-32, -55, 0), V(-35, -55, 0)),
    Part.LineSegment(V(-35, -55, 0), V(-35, -65, 0)),
    Part.LineSegment(V(-35, -65, 0), V(-32, -65, 0)),
    Part.LineSegment(V(-32, -65, 0), V(-32, -55, 0)),
], False)
sketch10.addConstraint([
    Sketcher.Constraint("Coincident", 0, 2, 1, 1),
    Sketcher.Constraint("Coincident", 1, 2, 2, 1),
    Sketcher.Constraint("Coincident", 2, 2, 3, 1),
    Sketcher.Constraint("Coincident", 3, 2, 0, 1),
    Sketcher.Constraint("Horizontal", 0),
    Sketcher.Constraint("Vertical", 1),
    Sketcher.Constraint("Horizontal", 2),
    Sketcher.Constraint("Vertical", 3),
    Sketcher.Constraint("DistanceX", 0, 2, 0, 1, Q("3 mm")),
    Sketcher.Constraint("DistanceY", 1, 2, 1, 1, Q("10 mm")),
    Sketcher.Constraint("DistanceX", 0, 2, -1, 1, Q("35 mm")),
    Sketcher.Constraint("DistanceY", 0, 2, -1, 1, Q("55 mm")),
])
pocket9 = doc.addObject("PartDesign::Pocket", "Pocket008")
body.addObject(pocket9)
pocket9.Profile = sketch10
pocket9.Length = 3

# Sketch on YZ plane
sketch11 = doc.addObject("Sketcher::SketchObject", "Sketch010")
body.addObject(sketch11)
sketch11.AttachmentSupport = (doc.YZ_Plane, [""])
sketch11.MapMode = "FlatFace"
sketch11.AttachmentOffset = App.Placement(V(0, 0, 3), App.Rotation())
sketch11.addGeometry([
    Part.LineSegment(V(-32, -75, 0), V(-35, -75, 0)),
    Part.LineSegment(V(-35, -75, 0), V(-35, -85, 0)),
    Part.LineSegment(V(-35, -85, 0), V(-32, -85, 0)),
    Part.LineSegment(V(-32, -85, 0), V(-32, -75, 0)),
], False)
sketch11.addConstraint([
    Sketcher.Constraint("Coincident", 0, 2, 1, 1),
    Sketcher.Constraint("Coincident", 1, 2, 2, 1),
    Sketcher.Constraint("Coincident", 2, 2, 3, 1),
    Sketcher.Constraint("Coincident", 3, 2, 0, 1),
    Sketcher.Constraint("Horizontal", 0),
    Sketcher.Constraint("Vertical", 1),
    Sketcher.Constraint("Horizontal", 2),
    Sketcher.Constraint("Vertical", 3),
    Sketcher.Constraint("DistanceX", 0, 2, 0, 1, Q("3 mm")),
    Sketcher.Constraint("DistanceY", 1, 2, 1, 1, Q("10 mm")),
    Sketcher.Constraint("DistanceX", 0, 2, -1, 1, Q("35 mm")),
    Sketcher.Constraint("DistanceY", 0, 2, -1, 1, Q("75 mm")),
])
pocket10 = doc.addObject("PartDesign::Pocket", "Pocket009")
body.addObject(pocket10)
pocket10.Profile = sketch11
pocket10.Length = 3

# Sketch on YZ plane
sketch12 = doc.addObject("Sketcher::SketchObject", "Sketch011")
body.addObject(sketch12)
sketch12.AttachmentSupport = (doc.YZ_Plane, [""])
sketch12.MapMode = "FlatFace"
sketch12.AttachmentOffset = App.Placement(V(0, 0, 3), App.Rotation())
sketch12.addGeometry([
    Part.LineSegment(V(-32, -95, 0), V(-35, -95, 0)),
    Part.LineSegment(V(-35, -95, 0), V(-35, -105, 0)),
    Part.LineSegment(V(-35, -105, 0), V(-32, -105, 0)),
    Part.LineSegment(V(-32, -105, 0), V(-32, -95, 0)),
], False)
sketch12.addConstraint([
    Sketcher.Constraint("Coincident", 0, 2, 1, 1),
    Sketcher.Constraint("Coincident", 1, 2, 2, 1),
    Sketcher.Constraint("Coincident", 2, 2, 3, 1),
    Sketcher.Constraint("Coincident", 3, 2, 0, 1),
    Sketcher.Constraint("Horizontal", 0),
    Sketcher.Constraint("Vertical", 1),
    Sketcher.Constraint("Horizontal", 2),
    Sketcher.Constraint("Vertical", 3),
    Sketcher.Constraint("DistanceX", 0, 2, 0, 1, Q("3 mm")),
    Sketcher.Constraint("DistanceY", 1, 2, 1, 1, Q("10 mm")),
    Sketcher.Constraint("DistanceX", 0, 2, -1, 1, Q("35 mm")),
    Sketcher.Constraint("DistanceY", 0, 2, -1, 1, Q("95 mm")),
])
pocket11 = doc.addObject("PartDesign::Pocket", "Pocket010")
body.addObject(pocket11)
pocket11.Profile = sketch12
pocket11.Length = 3

# Sketch on YZ plane
sketch13 = doc.addObject("Sketcher::SketchObject", "Sketch012")
body.addObject(sketch13)
sketch13.AttachmentSupport = (doc.YZ_Plane, [""])
sketch13.MapMode = "FlatFace"
sketch13.AttachmentOffset = App.Placement(V(0, 0, 3), App.Rotation())
sketch13.addGeometry([
    Part.LineSegment(V(25, 105, 0), V(15, 105, 0)),
    Part.LineSegment(V(15, 105, 0), V(15, 102, 0)),
    Part.LineSegment(V(15, 102, 0), V(25, 102, 0)),
    Part.LineSegment(V(25, 102, 0), V(25, 105, 0)),
], False)
sketch13.addConstraint([
    Sketcher.Constraint("Coincident", 0, 2, 1, 1),
    Sketcher.Constraint("Coincident", 1, 2, 2, 1),
    Sketcher.Constraint("Coincident", 2, 2, 3, 1),
    Sketcher.Constraint("Coincident", 3, 2, 0, 1),
    Sketcher.Constraint("Horizontal", 0),
    Sketcher.Constraint("Vertical", 1),
    Sketcher.Constraint("Horizontal", 2),
    Sketcher.Constraint("Vertical", 3),
    Sketcher.Constraint("DistanceX", 0, 2, 0, 1, Q("10 mm")),
    Sketcher.Constraint("DistanceY", 1, 2, 1, 1, Q("3 mm")),
    Sketcher.Constraint("DistanceX", -1, 1, 0, 2, Q("15 mm")),
    Sketcher.Constraint("DistanceY", -1, 1, 0, 2, Q("105 mm")),
])
pocket12 = doc.addObject("PartDesign::Pocket", "Pocket011")
body.addObject(pocket12)
pocket12.Profile = sketch13
pocket12.Length = 3
doc.recompute()

linearpattern2 = doc.addObject("PartDesign::LinearPattern", "LinearPattern001")
body.addObject(linearpattern2)
linearpattern2.Originals = [pocket12]
linearpattern2.Direction = (doc.Y_Axis, [""])
linearpattern2.Mode = "offset"
linearpattern2.Offset = 20
linearpattern2.Occurrences = 3
linearpattern2.Reversed = True
body.Tip = linearpattern2
doc.recompute()

mirrored2 = doc.addObject("PartDesign::Mirrored", "Mirrored001")
body.addObject(mirrored2)
mirrored2.Originals = [pocket12]
mirrored2.MirrorPlane = (doc.XY_Plane, [""])
body.Tip = mirrored2

# Sketch on YZ plane
sketch14 = doc.addObject("Sketcher::SketchObject", "Sketch013")
body.addObject(sketch14)
sketch14.AttachmentSupport = (doc.YZ_Plane, [""])
sketch14.MapMode = "FlatFace"
sketch14.AttachmentOffset = App.Placement(V(0, 0, 3), App.Rotation())
sketch14.addGeometry([
    Part.LineSegment(V(-5, -105, 0), V(5, -105, 0)),
    Part.LineSegment(V(5, -105, 0), V(5, -102, 0)),
    Part.LineSegment(V(5, -102, 0), V(-5, -102, 0)),
    Part.LineSegment(V(-5, -102, 0), V(-5, -105, 0)),
], False)
sketch14.addConstraint([
    Sketcher.Constraint("Coincident", 0, 2, 1, 1),
    Sketcher.Constraint("Coincident", 1, 2, 2, 1),
    Sketcher.Constraint("Coincident", 2, 2, 3, 1),
    Sketcher.Constraint("Coincident", 3, 2, 0, 1),
    Sketcher.Constraint("Horizontal", 0),
    Sketcher.Constraint("Vertical", 1),
    Sketcher.Constraint("Horizontal", 2),
    Sketcher.Constraint("Vertical", 3),
    Sketcher.Constraint("DistanceX", 0, 1, 0, 2, Q("10 mm")),
    Sketcher.Constraint("DistanceY", 1, 1, 1, 2, Q("3 mm")),
    Sketcher.Constraint("DistanceX", -1, 1, 0, 2, Q("5 mm")),
    Sketcher.Constraint("DistanceY", 0, 2, -1, 1, Q("105 mm")),
])
pocket13 = doc.addObject("PartDesign::Pocket", "Pocket012")
body.addObject(pocket13)
pocket13.Profile = sketch14
pocket13.Length = 3

# Sketch on YZ plane
sketch15 = doc.addObject("Sketcher::SketchObject", "Sketch014")
body.addObject(sketch15)
sketch15.AttachmentSupport = (doc.YZ_Plane, [""])
sketch15.MapMode = "FlatFace"
sketch15.AttachmentOffset = App.Placement(V(0, 0, 3), App.Rotation())
sketch15.addGeometry([
    Part.LineSegment(V(-25, -105, 0), V(-15, -105, 0)),
    Part.LineSegment(V(-15, -105, 0), V(-15, -102, 0)),
    Part.LineSegment(V(-15, -102, 0), V(-25, -102, 0)),
    Part.LineSegment(V(-25, -102, 0), V(-25, -105, 0)),
], False)
sketch15.addConstraint([
    Sketcher.Constraint("Coincident", 0, 2, 1, 1),
    Sketcher.Constraint("Coincident", 1, 2, 2, 1),
    Sketcher.Constraint("Coincident", 2, 2, 3, 1),
    Sketcher.Constraint("Coincident", 3, 2, 0, 1),
    Sketcher.Constraint("Horizontal", 0),
    Sketcher.Constraint("Vertical", 1),
    Sketcher.Constraint("Horizontal", 2),
    Sketcher.Constraint("Vertical", 3),
    Sketcher.Constraint("DistanceX", 0, 1, 0, 2, Q("10 mm")),
    Sketcher.Constraint("DistanceY", 1, 1, 1, 2, Q("3 mm")),
    Sketcher.Constraint("DistanceX", 0, 2, -1, 1, Q("15 mm")),
    Sketcher.Constraint("DistanceY", 0, 2, -1, 1, Q("105 mm")),
])
pocket14 = doc.addObject("PartDesign::Pocket", "Pocket013")
body.addObject(pocket14)
pocket14.Profile = sketch15
pocket14.Length = 3

# Sketch on YZ plane
sketch16 = doc.addObject("Sketcher::SketchObject", "Sketch015")
body.addObject(sketch16)
sketch16.AttachmentSupport = (doc.YZ_Plane, [""])
sketch16.MapMode = "FlatFace"
sketch16.AttachmentOffset = App.Placement(V(0, 0, 3), App.Rotation())
sketch16.addGeometry([
    Part.LineSegment(V(25, 93, 0), V(-25, 93, 0)),
    Part.LineSegment(V(-25, 93, 0), V(-25, 87, 0)),
    Part.LineSegment(V(-25, 87, 0), V(25, 87, 0)),
    Part.LineSegment(V(25, 87, 0), V(25, 93, 0)),
], False)
sketch16.addConstraint([
    Sketcher.Constraint("Coincident", 0, 2, 1, 1),
    Sketcher.Constraint("Coincident", 1, 2, 2, 1),
    Sketcher.Constraint("Coincident", 2, 2, 3, 1),
    Sketcher.Constraint("Coincident", 3, 2, 0, 1),
    Sketcher.Constraint("Horizontal", 0),
    Sketcher.Constraint("Vertical", 1),
    Sketcher.Constraint("Horizontal", 2),
    Sketcher.Constraint("Vertical", 3),
    Sketcher.Constraint("DistanceX", 0, 2, 0, 1, Q("50 mm")),
    Sketcher.Constraint("DistanceY", 1, 2, 1, 1, Q("6 mm")),
    Sketcher.Constraint("DistanceX", 0, 2, -1, 1, Q("25 mm")),
    Sketcher.Constraint("DistanceY", -1, 1, 0, 2, Q("93 mm")),
])
pocket15 = doc.addObject("PartDesign::Pocket", "Pocket014")
body.addObject(pocket15)
pocket15.Profile = sketch16
pocket15.Length = 3
doc.recompute()

linearpattern3 = doc.addObject("PartDesign::LinearPattern", "LinearPattern002")
body.addObject(linearpattern3)
linearpattern3.Originals = [pocket15]
linearpattern3.Direction = (doc.Z_Axis, [""])
linearpattern3.Mode = "offset"
linearpattern3.Offset = 20
linearpattern3.Occurrences = 10
linearpattern3.Reversed = True
body.Tip = linearpattern3

doc.recompute()
